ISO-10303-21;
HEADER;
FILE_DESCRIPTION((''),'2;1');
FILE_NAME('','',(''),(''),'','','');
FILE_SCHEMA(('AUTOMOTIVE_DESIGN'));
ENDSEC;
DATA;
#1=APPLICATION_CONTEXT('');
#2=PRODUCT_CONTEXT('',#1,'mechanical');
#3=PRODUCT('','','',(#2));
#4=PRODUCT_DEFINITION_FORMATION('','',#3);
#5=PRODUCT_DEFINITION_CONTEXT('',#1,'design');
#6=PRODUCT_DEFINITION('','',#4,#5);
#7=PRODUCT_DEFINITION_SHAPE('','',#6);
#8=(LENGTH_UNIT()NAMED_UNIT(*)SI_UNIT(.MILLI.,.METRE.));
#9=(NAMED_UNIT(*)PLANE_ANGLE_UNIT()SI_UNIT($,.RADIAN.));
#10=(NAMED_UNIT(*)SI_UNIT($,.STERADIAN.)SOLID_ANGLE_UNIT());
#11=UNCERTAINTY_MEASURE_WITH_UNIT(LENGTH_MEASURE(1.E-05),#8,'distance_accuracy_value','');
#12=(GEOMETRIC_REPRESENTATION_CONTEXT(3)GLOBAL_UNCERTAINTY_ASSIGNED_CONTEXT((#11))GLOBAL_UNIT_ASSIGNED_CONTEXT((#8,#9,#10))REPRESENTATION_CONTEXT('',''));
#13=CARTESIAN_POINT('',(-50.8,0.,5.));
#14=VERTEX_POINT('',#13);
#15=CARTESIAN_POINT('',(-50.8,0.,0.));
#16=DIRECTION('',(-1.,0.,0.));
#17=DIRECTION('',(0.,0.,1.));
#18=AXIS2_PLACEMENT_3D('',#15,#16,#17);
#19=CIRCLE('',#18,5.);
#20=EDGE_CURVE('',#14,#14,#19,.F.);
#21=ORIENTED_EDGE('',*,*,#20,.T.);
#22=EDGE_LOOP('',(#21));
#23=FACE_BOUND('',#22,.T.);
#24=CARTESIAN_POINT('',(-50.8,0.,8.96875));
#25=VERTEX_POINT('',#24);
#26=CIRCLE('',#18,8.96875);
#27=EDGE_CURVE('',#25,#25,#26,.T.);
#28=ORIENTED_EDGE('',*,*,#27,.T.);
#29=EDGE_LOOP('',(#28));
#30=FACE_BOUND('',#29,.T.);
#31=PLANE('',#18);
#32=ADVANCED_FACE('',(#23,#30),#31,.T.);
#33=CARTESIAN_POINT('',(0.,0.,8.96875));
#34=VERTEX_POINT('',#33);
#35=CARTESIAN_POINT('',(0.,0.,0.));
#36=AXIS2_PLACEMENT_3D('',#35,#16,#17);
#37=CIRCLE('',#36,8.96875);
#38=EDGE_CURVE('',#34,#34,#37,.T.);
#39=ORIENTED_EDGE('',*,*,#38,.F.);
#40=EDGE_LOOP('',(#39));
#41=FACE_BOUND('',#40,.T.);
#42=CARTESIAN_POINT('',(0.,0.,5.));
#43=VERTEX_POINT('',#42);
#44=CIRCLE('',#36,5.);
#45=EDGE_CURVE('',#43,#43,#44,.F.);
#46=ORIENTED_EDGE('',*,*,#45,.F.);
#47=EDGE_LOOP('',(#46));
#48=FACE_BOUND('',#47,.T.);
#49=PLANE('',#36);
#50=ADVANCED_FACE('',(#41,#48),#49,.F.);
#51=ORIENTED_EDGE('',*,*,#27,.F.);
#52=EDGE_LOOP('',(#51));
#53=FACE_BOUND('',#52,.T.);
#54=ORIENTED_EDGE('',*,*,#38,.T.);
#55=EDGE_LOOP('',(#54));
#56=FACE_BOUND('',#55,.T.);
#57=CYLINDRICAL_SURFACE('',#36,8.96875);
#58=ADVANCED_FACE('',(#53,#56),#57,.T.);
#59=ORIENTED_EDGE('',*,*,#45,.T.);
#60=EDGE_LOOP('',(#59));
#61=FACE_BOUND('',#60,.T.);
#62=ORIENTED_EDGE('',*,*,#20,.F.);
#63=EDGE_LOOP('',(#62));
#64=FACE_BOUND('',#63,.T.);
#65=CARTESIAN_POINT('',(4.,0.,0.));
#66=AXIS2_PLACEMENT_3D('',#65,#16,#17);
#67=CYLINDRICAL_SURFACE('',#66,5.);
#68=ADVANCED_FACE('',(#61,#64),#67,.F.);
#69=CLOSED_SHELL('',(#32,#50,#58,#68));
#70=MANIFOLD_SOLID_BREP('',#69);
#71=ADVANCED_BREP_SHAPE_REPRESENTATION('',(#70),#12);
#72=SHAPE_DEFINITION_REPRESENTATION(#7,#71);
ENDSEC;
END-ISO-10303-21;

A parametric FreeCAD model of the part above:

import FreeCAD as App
import Part
import Sketcher
from FreeCAD import Vector
Q = App.Units.Quantity

doc = App.newDocument("Part")
params = doc.addObject("Spreadsheet::Sheet", "Params")
for row, (alias, value) in enumerate([
    ("sketch2_width", "50.8 mm"),
    ("sketch3_diameter", "10 mm"),
    ("sketch4_width", "50.8 mm"),
], start=1):
    params.set(f"A{row}", alias)
    params.set(f"B{row}", "=" + value)
    params.setAlias(f"B{row}", alias)

body = doc.addObject("PartDesign::Body", "Body")

sketch1 = body.newObject("Sketcher::SketchObject", "Sketch")
sketch1.AttachmentSupport = (doc.getObject("YZ_Plane"), [""])
sketch1.MapMode = "FlatFace"
sketch1.addGeometry(Part.Circle(Vector(0, 0, 0), Vector(0, 0, 1), 9), False)
sketch1.addConstraint([
    Sketcher.Constraint("Coincident", 0, 3, -1, 1),
    Sketcher.Constraint("Diameter", 0, Q("17.9375 mm")),
])

sketch2 = body.newObject("Sketcher::SketchObject", "Sketch001")
sketch2.AttachmentSupport = (doc.getObject("XY_Plane"), [""])
sketch2.MapMode = "FlatFace"
sketch2.addGeometry(Part.LineSegment(Vector(0, 0, 0), Vector(-51, 0, 0)), False)
sketch2.addConstraint([
    Sketcher.Constraint("Horizontal", 0),
    Sketcher.Constraint("Coincident", 0, 1, -1, 1),
    Sketcher.Constraint("DistanceX", 0, 2, 0, 1, Q("50.8 mm")),
])
sketch2.setExpression("Constraints[2]", "Params.sketch2_width")
doc.recompute()

additivepipe = body.newObject("PartDesign::AdditivePipe", "AdditivePipe")
additivepipe.Profile = sketch1
additivepipe.Spine = (sketch2, ["Edge1"])

sketch3 = body.newObject("Sketcher::SketchObject", "Sketch002")
sketch3.AttachmentSupport = (doc.getObject("YZ_Plane"), [""])
sketch3.MapMode = "FlatFace"
sketch3.addGeometry(Part.Circle(Vector(0, 0, 0), Vector(0, 0, 1), 5), False)
sketch3.addConstraint([
    Sketcher.Constraint("Coincident", 0, 3, -1, 1),
    Sketcher.Constraint("Diameter", 0, Q("10 mm")),
])
sketch3.setExpression("Constraints[1]", "Params.sketch3_diameter")

sketch4 = body.newObject("Sketcher::SketchObject", "Sketch003")
sketch4.AttachmentSupport = (doc.getObject("XY_Plane"), [""])
sketch4.MapMode = "FlatFace"
sketch4.addGeometry(Part.LineSegment(Vector(0, 0, 0), Vector(-51, 0, 0)), False)
sketch4.addConstraint([
    Sketcher.Constraint("Horizontal", 0),
    Sketcher.Constraint("Coincident", 0, 1, -1, 1),
    Sketcher.Constraint("DistanceX", 0, 2, 0, 1, Q("50.8 mm")),
])
sketch4.setExpression("Constraints[2]", "Params.sketch4_width")
doc.recompute()

subtractivepipe = body.newObject("PartDesign::SubtractivePipe", "SubtractivePipe")
subtractivepipe.Profile = sketch3
subtractivepipe.Spine = (sketch4, ["Edge1"])

doc.recompute()
